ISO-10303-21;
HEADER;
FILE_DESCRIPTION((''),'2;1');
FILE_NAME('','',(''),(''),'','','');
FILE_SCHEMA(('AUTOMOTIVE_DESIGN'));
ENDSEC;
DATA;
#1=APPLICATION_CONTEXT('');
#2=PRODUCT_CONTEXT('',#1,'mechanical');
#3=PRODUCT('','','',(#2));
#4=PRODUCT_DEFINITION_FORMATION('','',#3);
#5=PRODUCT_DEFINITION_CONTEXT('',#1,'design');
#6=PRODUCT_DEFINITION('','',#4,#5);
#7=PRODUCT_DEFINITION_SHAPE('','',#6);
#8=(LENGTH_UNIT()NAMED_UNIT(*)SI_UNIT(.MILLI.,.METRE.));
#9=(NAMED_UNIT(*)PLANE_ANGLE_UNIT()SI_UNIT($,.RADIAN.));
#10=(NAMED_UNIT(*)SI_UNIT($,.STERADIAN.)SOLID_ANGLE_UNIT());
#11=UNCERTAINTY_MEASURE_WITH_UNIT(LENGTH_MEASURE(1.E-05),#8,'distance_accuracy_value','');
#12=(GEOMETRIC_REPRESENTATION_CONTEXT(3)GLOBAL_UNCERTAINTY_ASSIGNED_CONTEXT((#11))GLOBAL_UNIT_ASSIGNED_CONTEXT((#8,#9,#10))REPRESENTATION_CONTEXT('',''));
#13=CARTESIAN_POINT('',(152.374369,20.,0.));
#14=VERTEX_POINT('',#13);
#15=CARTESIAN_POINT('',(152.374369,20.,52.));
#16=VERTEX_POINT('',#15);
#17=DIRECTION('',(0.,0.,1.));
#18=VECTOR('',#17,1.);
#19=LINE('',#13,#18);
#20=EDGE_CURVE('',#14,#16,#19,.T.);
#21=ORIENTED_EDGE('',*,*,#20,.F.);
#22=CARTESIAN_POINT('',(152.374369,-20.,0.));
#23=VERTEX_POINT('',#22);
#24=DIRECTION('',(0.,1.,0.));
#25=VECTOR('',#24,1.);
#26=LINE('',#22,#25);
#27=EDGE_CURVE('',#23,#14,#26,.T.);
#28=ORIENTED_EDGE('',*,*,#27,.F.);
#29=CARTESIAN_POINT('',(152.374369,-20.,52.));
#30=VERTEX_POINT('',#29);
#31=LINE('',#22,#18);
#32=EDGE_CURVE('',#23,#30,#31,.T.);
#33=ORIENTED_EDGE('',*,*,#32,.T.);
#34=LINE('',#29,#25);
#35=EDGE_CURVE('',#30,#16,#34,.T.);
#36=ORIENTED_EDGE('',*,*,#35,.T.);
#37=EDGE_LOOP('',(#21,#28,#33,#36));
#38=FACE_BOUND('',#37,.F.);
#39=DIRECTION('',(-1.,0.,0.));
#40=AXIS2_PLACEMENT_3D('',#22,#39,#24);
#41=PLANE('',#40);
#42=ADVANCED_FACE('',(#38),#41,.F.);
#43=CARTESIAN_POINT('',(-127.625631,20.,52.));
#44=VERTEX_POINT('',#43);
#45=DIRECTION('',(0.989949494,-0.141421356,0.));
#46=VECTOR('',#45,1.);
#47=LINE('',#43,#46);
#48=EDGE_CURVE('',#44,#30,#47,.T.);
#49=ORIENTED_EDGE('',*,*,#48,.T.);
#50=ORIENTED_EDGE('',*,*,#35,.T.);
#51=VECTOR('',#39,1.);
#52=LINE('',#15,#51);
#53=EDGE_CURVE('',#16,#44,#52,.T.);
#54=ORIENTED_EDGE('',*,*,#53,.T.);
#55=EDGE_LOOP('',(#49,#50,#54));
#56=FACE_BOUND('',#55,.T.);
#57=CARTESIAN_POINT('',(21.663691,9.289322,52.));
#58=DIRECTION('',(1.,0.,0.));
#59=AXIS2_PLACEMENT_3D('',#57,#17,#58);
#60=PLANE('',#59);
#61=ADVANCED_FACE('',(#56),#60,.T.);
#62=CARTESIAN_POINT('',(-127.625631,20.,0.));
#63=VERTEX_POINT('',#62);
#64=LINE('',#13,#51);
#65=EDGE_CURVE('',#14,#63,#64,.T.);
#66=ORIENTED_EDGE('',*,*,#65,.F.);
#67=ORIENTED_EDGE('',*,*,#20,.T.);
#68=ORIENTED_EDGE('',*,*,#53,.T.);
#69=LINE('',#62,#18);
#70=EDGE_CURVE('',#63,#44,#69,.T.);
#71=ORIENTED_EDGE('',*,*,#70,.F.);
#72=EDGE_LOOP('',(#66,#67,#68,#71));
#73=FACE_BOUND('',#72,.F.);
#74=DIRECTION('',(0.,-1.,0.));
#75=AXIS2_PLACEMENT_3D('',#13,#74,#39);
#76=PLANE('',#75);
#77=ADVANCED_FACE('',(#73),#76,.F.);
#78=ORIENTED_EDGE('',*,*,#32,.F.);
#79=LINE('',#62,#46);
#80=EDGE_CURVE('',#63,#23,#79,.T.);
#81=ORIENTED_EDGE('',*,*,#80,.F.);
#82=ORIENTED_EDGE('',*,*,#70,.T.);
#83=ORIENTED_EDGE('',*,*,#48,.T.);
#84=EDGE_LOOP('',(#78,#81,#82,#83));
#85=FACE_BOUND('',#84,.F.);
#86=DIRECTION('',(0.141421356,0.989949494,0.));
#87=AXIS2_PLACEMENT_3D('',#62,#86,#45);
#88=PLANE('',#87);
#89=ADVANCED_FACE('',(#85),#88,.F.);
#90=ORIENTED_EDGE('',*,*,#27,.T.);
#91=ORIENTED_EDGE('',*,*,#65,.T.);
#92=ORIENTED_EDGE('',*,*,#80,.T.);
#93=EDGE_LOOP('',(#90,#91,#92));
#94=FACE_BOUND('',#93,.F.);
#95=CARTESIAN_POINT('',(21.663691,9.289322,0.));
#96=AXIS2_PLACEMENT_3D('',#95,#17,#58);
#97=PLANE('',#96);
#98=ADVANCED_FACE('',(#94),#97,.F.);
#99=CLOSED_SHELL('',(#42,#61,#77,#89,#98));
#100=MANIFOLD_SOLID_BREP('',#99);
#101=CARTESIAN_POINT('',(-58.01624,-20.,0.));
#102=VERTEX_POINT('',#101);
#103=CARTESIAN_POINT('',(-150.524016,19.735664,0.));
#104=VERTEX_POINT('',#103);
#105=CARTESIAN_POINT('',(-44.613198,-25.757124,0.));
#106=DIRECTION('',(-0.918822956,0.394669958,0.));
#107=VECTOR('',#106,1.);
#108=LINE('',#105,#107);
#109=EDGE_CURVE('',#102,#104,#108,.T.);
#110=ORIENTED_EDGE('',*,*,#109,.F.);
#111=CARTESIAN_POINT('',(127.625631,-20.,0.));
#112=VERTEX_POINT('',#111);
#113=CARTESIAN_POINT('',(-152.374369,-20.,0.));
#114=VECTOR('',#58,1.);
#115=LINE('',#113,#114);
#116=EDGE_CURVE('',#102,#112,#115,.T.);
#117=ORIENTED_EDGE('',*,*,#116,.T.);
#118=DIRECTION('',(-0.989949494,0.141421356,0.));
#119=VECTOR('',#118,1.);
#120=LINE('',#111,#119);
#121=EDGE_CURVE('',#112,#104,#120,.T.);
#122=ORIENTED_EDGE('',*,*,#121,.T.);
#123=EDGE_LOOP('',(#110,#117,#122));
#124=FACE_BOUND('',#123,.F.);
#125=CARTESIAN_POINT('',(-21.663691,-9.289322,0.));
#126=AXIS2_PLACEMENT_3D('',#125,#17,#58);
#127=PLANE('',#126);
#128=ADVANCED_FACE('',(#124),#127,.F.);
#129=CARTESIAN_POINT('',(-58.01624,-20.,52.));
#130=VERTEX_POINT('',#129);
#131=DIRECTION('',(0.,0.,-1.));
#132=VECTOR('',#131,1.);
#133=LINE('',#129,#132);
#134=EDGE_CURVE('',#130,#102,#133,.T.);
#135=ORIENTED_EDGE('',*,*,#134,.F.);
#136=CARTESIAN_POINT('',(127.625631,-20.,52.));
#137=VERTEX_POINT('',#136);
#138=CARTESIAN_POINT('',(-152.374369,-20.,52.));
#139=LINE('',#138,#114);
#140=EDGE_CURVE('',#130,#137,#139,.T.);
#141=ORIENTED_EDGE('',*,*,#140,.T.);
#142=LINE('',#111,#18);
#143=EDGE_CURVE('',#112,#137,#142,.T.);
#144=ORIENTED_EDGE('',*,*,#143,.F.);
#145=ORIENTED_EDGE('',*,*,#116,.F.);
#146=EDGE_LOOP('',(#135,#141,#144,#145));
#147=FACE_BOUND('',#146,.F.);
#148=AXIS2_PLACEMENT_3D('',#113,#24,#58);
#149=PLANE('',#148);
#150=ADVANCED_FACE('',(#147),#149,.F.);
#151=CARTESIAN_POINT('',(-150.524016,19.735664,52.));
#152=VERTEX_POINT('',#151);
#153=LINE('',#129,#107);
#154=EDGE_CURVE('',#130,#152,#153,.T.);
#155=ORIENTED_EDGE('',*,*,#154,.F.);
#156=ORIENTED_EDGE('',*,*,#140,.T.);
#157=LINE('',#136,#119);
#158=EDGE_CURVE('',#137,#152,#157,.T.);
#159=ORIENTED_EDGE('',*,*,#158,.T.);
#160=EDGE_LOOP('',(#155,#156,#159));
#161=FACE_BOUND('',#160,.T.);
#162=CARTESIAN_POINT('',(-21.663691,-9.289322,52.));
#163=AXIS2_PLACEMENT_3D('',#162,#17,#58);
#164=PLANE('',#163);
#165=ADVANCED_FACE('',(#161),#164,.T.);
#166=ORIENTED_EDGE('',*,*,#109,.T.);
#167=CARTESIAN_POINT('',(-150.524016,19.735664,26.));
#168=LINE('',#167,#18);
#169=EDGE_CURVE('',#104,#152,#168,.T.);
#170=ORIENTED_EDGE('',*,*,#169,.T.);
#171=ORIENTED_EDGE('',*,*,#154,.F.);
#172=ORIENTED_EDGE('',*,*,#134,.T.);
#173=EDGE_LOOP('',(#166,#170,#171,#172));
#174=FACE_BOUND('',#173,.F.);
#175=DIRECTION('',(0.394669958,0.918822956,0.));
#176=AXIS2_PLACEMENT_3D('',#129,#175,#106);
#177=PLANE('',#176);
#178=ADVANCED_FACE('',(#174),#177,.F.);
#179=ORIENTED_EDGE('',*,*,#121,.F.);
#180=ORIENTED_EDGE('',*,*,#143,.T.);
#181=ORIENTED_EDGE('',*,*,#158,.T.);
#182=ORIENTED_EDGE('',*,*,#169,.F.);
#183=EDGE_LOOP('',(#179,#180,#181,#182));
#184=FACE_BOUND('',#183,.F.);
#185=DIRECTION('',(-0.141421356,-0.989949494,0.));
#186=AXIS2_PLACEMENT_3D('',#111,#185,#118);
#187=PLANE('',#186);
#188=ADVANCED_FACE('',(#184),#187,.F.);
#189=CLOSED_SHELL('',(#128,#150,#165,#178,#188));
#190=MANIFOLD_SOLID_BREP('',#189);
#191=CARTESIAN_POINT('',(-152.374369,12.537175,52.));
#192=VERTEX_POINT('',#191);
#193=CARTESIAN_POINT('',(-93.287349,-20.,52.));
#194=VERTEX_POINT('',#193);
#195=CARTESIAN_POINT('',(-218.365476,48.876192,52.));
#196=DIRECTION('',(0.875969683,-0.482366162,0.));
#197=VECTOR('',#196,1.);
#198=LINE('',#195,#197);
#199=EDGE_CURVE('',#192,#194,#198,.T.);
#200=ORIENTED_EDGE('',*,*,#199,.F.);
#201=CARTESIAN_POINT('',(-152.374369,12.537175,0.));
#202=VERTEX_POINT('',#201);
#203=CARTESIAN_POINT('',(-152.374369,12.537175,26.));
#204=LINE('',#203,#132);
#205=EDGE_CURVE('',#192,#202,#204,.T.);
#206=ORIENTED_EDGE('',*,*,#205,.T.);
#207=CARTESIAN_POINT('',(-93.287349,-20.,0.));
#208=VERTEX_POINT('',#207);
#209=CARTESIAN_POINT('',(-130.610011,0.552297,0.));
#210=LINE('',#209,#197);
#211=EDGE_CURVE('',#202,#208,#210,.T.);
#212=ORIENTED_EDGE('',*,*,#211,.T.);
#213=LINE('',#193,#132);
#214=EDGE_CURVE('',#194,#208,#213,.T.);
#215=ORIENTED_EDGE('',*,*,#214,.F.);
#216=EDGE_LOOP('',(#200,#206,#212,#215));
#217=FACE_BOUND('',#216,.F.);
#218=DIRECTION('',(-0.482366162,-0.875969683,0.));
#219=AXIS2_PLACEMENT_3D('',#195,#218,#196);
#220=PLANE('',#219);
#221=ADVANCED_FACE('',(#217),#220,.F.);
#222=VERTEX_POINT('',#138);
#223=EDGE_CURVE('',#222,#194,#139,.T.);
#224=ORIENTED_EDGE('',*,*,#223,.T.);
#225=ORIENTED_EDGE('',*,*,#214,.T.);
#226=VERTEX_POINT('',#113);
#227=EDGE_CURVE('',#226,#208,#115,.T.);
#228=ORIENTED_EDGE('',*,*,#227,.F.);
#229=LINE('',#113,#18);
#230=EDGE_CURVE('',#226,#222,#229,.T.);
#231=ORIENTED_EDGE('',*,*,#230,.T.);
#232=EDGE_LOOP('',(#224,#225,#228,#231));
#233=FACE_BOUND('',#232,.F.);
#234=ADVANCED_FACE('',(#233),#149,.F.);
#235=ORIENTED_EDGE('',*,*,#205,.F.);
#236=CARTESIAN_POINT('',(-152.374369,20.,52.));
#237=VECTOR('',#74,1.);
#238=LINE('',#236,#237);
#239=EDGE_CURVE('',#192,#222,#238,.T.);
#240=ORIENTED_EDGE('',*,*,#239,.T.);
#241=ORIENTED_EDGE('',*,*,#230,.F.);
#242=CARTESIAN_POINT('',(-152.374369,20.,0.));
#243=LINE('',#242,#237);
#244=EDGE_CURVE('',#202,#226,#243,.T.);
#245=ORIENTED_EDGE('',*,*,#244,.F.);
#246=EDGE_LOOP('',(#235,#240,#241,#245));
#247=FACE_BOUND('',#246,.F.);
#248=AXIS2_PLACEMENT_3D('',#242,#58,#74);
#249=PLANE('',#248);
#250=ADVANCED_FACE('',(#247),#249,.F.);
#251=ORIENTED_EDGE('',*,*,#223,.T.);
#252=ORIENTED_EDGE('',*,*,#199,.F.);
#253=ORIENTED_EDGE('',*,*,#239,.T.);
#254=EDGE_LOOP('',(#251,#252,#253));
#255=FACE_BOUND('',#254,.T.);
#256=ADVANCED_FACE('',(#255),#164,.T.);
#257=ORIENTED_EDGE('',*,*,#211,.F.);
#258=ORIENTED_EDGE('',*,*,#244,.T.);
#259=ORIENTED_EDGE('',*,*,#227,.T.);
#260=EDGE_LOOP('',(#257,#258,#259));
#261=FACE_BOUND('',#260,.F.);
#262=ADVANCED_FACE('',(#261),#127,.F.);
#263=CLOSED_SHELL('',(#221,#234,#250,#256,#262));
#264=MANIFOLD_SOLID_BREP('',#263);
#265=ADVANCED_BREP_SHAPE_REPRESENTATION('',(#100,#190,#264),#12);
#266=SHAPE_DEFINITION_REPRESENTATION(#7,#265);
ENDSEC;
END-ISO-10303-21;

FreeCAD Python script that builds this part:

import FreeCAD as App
import Part
import Sketcher


def add_polygon(sketch, points):
    """Adds a closed chain of lines whose ends are joined by coincident constraints."""
    first, n = sketch.GeometryCount, len(points)
    for a, b in zip(points, points[1:] + points[:1]):
        sketch.addGeometry(Part.LineSegment(App.Vector(*a, 0), App.Vector(*b, 0)), False)
    for i in range(n):
        sketch.addConstraint(Sketcher.Constraint("Coincident", first + i, 2, first + (i + 1) % n, 1))

doc = App.newDocument("Part")
body = doc.addObject("PartDesign::Body", "Body")
body.AllowCompound = True

# Sketch on XY plane
sketch1 = body.newObject("Sketcher::SketchObject", "Sketch")
sketch1.AttachmentSupport = (doc.getObject("XY_Plane"), [""])
sketch1.MapMode = "FlatFace"
add_polygon(sketch1, [(-152, -20), (128, -20), (-152, 20)])  # lines 0-2
add_polygon(sketch1, [(-128, 20), (152, -20), (152, 20)])  # lines 3-5
sketch1.addConstraint([
    Sketcher.Constraint("Horizontal", 0),
    Sketcher.Constraint("Vertical", 2),
    Sketcher.Constraint("Vertical", 4),
    Sketcher.Constraint("Horizontal", 5),
    Sketcher.Constraint("Symmetric", 1, 2, 3, 2, -1, 1),
    Sketcher.Constraint("Symmetric", 0, 2, 5, 2, -1, 1),
    Sketcher.Constraint("Horizontal", 2, 2, 3, 2),
    Sketcher.Constraint("DistanceX", 0, 1, 0, 2, 280.0),
    Sketcher.Constraint("DistanceY", 2, 2, 2, 1, 40.0),
    Sketcher.Constraint("DistanceX", -1, 1, 0, 2, 127.625631),
])
pad1 = body.newObject("PartDesign::Pad", "Pad")
pad1.Profile = sketch1
pad1.Length = 52

# Sketch on XY plane
sketch2 = body.newObject("Sketcher::SketchObject", "Sketch001")
sketch2.AttachmentSupport = (doc.getObject("XY_Plane"), [""])
sketch2.MapMode = "FlatFace"
sketch2.AttachmentOffset = App.Placement(App.Vector(0, 0, 52), App.Rotation())
add_polygon(sketch2, [(-93, -20), (-58, -20), (-218, 49)])  # lines 0-2
sketch2.addConstraint([
    Sketcher.Constraint("Horizontal", 0),
    Sketcher.Constraint("DistanceY", 0, 2, -1, 1, 20.0),
    Sketcher.Constraint("DistanceX", 0, 1, 0, 2, 35.271109),
    Sketcher.Constraint("Distance", 2, 142.788192),
    Sketcher.Constraint("DistanceX", 0, 2, -1, 1, 58.01624),
    Sketcher.Constraint("Distance", 1, 174.515923),
])
pocket1 = body.newObject("PartDesign::Pocket", "Pocket")
pocket1.Profile = sketch2
pocket1.Type = "ThroughAll"

doc.recompute()
